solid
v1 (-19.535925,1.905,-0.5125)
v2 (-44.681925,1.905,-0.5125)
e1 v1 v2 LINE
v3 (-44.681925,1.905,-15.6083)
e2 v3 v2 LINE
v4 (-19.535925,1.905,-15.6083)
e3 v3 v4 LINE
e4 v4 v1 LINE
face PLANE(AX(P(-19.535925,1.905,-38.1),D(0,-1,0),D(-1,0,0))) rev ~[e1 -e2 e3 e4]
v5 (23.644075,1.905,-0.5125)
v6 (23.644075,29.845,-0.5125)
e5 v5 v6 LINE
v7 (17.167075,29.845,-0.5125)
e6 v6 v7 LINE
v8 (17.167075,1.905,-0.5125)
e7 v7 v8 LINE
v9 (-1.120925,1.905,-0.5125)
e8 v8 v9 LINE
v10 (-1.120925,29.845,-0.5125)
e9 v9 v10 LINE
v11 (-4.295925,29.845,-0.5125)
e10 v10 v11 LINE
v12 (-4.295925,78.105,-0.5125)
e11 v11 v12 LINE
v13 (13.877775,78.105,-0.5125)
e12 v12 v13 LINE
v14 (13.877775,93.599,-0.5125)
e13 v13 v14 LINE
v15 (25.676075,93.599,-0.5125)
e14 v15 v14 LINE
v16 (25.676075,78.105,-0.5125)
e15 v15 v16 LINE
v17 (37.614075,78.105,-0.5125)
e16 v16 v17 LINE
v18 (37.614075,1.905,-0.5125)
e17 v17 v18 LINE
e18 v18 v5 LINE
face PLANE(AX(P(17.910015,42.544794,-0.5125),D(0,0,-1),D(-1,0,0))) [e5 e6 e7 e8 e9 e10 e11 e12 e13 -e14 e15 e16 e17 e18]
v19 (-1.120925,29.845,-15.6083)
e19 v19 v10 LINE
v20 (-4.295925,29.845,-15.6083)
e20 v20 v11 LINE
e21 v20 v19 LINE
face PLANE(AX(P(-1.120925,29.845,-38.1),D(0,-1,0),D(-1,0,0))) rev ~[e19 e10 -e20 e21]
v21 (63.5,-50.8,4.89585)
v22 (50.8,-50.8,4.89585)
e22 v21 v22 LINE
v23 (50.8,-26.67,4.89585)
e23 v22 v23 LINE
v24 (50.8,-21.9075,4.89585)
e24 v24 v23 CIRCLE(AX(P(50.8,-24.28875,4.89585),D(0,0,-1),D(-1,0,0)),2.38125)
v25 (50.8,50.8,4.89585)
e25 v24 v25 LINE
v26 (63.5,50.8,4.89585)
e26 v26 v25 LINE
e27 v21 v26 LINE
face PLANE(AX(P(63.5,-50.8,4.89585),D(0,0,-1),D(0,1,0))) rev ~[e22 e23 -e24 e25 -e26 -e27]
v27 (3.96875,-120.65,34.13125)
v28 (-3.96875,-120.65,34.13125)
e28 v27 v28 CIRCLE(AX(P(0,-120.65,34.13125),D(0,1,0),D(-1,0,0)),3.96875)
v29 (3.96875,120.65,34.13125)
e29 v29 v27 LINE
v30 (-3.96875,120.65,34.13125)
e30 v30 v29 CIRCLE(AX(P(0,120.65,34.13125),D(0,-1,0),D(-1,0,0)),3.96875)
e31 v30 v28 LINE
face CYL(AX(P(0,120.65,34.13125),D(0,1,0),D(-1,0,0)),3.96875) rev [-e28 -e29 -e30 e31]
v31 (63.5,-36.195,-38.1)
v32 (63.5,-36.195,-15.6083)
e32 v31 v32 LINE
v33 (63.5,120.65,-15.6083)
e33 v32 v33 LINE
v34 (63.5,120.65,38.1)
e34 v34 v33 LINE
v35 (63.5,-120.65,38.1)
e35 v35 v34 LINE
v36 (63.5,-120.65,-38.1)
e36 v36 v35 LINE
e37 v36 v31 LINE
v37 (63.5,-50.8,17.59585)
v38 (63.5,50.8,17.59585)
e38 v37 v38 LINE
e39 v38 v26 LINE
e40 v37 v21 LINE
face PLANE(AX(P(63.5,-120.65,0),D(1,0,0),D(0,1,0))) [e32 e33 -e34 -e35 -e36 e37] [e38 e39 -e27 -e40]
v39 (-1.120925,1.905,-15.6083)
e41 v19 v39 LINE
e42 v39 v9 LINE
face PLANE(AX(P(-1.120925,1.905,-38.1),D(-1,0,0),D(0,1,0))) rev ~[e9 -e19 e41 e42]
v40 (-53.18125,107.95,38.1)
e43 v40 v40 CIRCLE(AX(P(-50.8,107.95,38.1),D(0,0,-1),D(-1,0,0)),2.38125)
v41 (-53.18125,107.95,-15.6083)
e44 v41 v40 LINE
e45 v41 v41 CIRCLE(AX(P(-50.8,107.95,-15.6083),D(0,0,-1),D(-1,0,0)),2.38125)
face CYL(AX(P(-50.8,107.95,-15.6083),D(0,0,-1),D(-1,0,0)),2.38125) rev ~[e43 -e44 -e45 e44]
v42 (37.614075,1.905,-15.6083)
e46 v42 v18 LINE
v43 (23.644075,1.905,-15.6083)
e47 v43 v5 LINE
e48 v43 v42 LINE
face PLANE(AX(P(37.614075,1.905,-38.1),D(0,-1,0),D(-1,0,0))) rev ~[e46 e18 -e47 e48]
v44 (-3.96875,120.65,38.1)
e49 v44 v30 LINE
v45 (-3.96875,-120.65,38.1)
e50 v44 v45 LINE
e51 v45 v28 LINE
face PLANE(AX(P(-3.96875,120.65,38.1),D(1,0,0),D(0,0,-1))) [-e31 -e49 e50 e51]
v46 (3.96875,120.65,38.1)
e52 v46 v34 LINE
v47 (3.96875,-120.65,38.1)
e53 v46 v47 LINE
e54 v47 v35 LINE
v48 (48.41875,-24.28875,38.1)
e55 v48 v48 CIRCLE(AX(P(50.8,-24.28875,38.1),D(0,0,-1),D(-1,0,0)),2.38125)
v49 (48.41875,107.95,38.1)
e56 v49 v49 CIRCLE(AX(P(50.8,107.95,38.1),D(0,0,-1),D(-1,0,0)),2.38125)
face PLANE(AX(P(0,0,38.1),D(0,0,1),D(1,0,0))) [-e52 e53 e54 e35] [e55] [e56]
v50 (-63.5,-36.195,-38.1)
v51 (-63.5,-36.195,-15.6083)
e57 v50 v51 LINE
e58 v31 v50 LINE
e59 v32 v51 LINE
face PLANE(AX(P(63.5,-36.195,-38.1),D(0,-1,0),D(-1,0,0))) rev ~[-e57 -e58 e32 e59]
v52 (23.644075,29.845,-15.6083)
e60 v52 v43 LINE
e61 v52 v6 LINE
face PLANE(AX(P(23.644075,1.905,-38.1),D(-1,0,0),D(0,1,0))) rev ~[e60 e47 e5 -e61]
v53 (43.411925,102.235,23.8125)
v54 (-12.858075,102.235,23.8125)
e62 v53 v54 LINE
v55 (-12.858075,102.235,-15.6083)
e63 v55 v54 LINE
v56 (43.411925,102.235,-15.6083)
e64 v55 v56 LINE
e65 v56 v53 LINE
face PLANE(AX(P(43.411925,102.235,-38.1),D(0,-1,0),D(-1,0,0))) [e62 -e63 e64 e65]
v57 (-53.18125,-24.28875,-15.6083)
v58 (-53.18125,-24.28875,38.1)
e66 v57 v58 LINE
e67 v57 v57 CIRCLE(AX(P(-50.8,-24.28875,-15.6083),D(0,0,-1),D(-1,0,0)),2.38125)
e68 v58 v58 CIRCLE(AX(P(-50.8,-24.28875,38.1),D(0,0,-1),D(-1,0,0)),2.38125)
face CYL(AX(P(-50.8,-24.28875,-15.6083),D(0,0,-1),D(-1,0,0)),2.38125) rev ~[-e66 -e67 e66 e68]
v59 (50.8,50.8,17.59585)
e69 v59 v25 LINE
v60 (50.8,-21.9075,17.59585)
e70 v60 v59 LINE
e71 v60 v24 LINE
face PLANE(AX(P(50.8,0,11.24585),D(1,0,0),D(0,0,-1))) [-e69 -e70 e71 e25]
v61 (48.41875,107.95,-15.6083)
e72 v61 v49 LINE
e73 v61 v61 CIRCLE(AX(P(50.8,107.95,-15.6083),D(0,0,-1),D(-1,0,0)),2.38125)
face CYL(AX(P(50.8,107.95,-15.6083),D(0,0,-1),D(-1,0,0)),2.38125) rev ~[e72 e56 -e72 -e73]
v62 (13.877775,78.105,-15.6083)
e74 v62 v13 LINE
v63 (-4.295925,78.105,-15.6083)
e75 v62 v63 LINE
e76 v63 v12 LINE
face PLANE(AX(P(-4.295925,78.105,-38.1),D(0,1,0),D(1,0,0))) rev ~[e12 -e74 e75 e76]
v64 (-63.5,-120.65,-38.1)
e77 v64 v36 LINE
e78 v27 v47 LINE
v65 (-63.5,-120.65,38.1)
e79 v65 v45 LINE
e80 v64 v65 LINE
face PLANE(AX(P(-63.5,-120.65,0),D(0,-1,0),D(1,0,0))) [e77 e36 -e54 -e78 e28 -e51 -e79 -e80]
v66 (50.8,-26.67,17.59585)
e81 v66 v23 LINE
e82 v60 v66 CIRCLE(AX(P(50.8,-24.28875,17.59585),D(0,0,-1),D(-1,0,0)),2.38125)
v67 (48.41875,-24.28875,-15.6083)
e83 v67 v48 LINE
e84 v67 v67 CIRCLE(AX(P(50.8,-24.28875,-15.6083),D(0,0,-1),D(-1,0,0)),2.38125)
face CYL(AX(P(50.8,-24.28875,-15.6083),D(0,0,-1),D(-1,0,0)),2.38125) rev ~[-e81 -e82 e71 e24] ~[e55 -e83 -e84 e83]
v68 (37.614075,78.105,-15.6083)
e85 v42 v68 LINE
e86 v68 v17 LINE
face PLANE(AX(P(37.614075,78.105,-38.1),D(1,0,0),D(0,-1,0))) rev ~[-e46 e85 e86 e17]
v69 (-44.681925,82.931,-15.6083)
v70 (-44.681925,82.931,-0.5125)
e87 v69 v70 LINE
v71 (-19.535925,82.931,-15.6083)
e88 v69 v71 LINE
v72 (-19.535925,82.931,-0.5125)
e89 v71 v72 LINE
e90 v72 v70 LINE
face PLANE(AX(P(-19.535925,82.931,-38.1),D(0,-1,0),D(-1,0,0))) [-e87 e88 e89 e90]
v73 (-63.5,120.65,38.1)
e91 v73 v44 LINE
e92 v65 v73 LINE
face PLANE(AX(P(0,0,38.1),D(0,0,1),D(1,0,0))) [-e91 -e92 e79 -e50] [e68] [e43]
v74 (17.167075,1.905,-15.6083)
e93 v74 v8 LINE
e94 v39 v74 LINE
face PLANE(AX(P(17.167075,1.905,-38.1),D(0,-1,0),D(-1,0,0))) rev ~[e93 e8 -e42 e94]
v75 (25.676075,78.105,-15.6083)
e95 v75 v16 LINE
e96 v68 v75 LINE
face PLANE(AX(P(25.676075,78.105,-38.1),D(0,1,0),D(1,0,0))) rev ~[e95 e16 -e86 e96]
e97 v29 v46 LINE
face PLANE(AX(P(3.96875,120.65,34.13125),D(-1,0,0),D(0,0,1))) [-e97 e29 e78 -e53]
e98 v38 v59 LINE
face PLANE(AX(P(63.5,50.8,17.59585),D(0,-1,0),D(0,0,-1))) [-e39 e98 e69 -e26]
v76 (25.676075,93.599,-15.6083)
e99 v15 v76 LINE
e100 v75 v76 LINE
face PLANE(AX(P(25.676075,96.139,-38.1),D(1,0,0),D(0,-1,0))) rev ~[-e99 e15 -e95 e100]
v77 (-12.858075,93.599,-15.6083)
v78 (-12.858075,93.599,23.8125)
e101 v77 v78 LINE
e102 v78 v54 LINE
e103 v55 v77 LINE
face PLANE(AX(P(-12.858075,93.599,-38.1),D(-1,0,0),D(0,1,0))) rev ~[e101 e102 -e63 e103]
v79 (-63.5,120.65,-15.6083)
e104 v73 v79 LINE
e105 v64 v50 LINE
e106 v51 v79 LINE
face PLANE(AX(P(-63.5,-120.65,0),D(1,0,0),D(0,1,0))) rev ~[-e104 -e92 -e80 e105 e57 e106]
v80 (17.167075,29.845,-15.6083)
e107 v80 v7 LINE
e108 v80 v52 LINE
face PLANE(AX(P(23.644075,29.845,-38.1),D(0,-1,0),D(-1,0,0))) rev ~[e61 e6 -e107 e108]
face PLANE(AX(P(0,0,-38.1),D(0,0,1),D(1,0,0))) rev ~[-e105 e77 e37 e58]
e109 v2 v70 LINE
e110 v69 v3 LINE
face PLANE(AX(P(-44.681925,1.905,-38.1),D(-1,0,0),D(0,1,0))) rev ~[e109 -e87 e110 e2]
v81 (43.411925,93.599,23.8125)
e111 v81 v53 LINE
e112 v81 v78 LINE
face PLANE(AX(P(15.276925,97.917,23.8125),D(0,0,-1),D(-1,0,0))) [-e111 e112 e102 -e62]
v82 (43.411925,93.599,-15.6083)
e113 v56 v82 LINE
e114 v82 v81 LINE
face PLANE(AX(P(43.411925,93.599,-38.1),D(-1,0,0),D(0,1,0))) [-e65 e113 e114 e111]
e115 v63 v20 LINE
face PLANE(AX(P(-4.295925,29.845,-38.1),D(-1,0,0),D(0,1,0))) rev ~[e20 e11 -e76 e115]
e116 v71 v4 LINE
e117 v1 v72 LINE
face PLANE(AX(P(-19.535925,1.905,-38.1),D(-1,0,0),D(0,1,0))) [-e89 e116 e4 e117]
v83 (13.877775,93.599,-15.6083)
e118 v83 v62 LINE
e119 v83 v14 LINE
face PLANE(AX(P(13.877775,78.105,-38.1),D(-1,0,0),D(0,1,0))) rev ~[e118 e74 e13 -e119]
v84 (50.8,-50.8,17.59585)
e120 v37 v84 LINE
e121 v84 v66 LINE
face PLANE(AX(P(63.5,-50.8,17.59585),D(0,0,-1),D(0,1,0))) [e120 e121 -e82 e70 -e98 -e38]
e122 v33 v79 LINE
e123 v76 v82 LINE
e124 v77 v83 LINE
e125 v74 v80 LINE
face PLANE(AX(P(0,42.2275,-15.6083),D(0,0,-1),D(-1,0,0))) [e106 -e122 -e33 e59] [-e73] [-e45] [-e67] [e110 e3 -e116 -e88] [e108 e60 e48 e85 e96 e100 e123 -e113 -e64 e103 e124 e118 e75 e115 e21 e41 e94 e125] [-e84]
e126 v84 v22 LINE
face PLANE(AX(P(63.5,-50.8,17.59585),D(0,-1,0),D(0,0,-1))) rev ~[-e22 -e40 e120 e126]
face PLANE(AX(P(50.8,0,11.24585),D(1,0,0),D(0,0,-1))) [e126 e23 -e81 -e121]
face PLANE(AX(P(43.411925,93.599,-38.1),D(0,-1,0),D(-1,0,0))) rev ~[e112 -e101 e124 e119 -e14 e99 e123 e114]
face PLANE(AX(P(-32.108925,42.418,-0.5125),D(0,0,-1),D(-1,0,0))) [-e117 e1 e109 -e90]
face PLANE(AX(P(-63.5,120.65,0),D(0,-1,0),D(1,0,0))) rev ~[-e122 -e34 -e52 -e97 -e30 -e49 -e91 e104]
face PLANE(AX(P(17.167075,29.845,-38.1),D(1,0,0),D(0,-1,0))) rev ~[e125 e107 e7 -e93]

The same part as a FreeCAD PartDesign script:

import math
import FreeCAD as App
import Part
import Sketcher
Q = App.Units.Quantity

doc = App.newDocument("Part")
body = doc.addObject("PartDesign::Body", "Body")

sketch1 = body.newObject("Sketcher::SketchObject", "Sketch")
sketch1.AttachmentSupport = (doc.getObject("XY_Plane"), [""])
sketch1.MapMode = "FlatFace"
sketch1.addGeometry([
    Part.LineSegment(App.Vector(-64, 121, 0), App.Vector(-64, -121, 0)),
    Part.LineSegment(App.Vector(-64, -121, 0), App.Vector(64, -121, 0)),
    Part.LineSegment(App.Vector(64, -121, 0), App.Vector(64, 121, 0)),
    Part.LineSegment(App.Vector(64, 121, 0), App.Vector(-64, 121, 0)),
], False)
sketch1.addConstraint([
    Sketcher.Constraint("Coincident", 0, 2, 1, 1),
    Sketcher.Constraint("Coincident", 1, 2, 2, 1),
    Sketcher.Constraint("Coincident", 2, 2, 3, 1),
    Sketcher.Constraint("Coincident", 3, 2, 0, 1),
    Sketcher.Constraint("Vertical", 0),
    Sketcher.Constraint("Horizontal", 1),
    Sketcher.Constraint("Vertical", 2),
    Sketcher.Constraint("Horizontal", 3),
    Sketcher.Constraint("Symmetric", 0, 2, 2, 2, -1, 1),
    Sketcher.Constraint("DistanceX", 1, 1, 1, 2, Q("5 in")),
    Sketcher.Constraint("DistanceY", 0, 2, 0, 1, Q("9.5 in")),
])
pad1 = body.newObject("PartDesign::Pad", "Pad")
pad1.Profile = sketch1
pad1.Length = Q("3 in")
pad1.Midplane = True

sketch2 = body.newObject("Sketcher::SketchObject", "Sketch001")
sketch2.AttachmentSupport = (doc.getObject("XZ_Plane"), [""])
sketch2.MapMode = "FlatFace"
sketch2.AttachmentOffset = App.Placement(App.Vector(0, 0, -4.75 * 25.4), App.Rotation())
sketch2.addGeometry([
    Part.LineSegment(App.Vector(-4, 34.1, 0), App.Vector(-4, 38.1, 0)),
    Part.LineSegment(App.Vector(-4, 38.1, 0), App.Vector(4, 38.1, 0)),
    Part.LineSegment(App.Vector(4, 38.1, 0), App.Vector(4, 34.1, 0)),
    Part.ArcOfCircle(Part.Circle(App.Vector(0, 34.1, 0), App.Vector(0, 0, 1), 4), math.radians(180), math.radians(360)),
], False)
sketch2.addConstraint([
    Sketcher.Constraint("Coincident", 0, 2, 1, 1),
    Sketcher.Constraint("Coincident", 1, 2, 2, 1),
    Sketcher.Constraint("Tangent", 2, 2, 3, 2),
    Sketcher.Constraint("Tangent", 3, 1, 0, 1),
    Sketcher.Constraint("Vertical", 0),
    Sketcher.Constraint("Horizontal", 1),
    Sketcher.Constraint("Vertical", 2),
    Sketcher.Constraint("PointOnObject", 3, 3, -2),
    Sketcher.Constraint("Radius", 3, Q("0.15625 in")),
    Sketcher.Constraint("DistanceY", -1, 1, 0, 2, Q("1.5 in")),
    Sketcher.Constraint("DistanceY", 0, 1, 0, 2, Q("0.15625 in")),
])
pocket1 = body.newObject("PartDesign::Pocket", "Pocket")
pocket1.Profile = sketch2
pocket1.Type = "UpToFirst"
pocket1.Reversed = True

sketch3 = body.newObject("Sketcher::SketchObject", "Sketch002")
sketch3.AttachmentSupport = (doc.getObject("XY_Plane"), [""])
sketch3.MapMode = "FlatFace"
sketch3.AttachmentOffset = App.Placement(App.Vector(0, 0, -1.5 * 25.4), App.Rotation())
sketch3.addGeometry([
    Part.LineSegment(App.Vector(37.6, 78.1, 0), App.Vector(37.6, 1.9, 0)),
    Part.LineSegment(App.Vector(37.6, 1.9, 0), App.Vector(23.6, 1.9, 0)),
    Part.LineSegment(App.Vector(23.6, 1.9, 0), App.Vector(23.6, 29.8, 0)),
    Part.LineSegment(App.Vector(23.6, 29.8, 0), App.Vector(17.2, 29.8, 0)),
    Part.LineSegment(App.Vector(17.2, 29.8, 0), App.Vector(17.2, 1.9, 0)),
    Part.LineSegment(App.Vector(17.2, 1.9, 0), App.Vector(-1.1, 1.9, 0)),
    Part.LineSegment(App.Vector(-1.1, 1.9, 0), App.Vector(-1.1, 29.8, 0)),
    Part.LineSegment(App.Vector(-1.1, 29.8, 0), App.Vector(-4.3, 29.8, 0)),
    Part.LineSegment(App.Vector(-4.3, 29.8, 0), App.Vector(-4.3, 78.1, 0)),
    Part.LineSegment(App.Vector(-4.3, 78.1, 0), App.Vector(13.9, 78.1, 0)),
    Part.LineSegment(App.Vector(13.9, 78.1, 0), App.Vector(13.9, 96.1, 0)),
    Part.LineSegment(App.Vector(13.9, 96.1, 0), App.Vector(25.7, 96.1, 0)),
    Part.LineSegment(App.Vector(25.7, 96.1, 0), App.Vector(25.7, 78.1, 0)),
    Part.LineSegment(App.Vector(25.7, 78.1, 0), App.Vector(37.6, 78.1, 0)),
    Part.LineSegment(App.Vector(-19.5, 82.9, 0), App.Vector(-19.5, 1.9, 0)),
    Part.LineSegment(App.Vector(-19.5, 1.9, 0), App.Vector(-44.7, 1.9, 0)),
    Part.LineSegment(App.Vector(-44.7, 1.9, 0), App.Vector(-44.7, 82.9, 0)),
    Part.LineSegment(App.Vector(-44.7, 82.9, 0), App.Vector(-19.5, 82.9, 0)),
], False)
sketch3.addConstraint([
    Sketcher.Constraint("Coincident", 0, 2, 1, 1),
    Sketcher.Constraint("Coincident", 1, 2, 2, 1),
    Sketcher.Constraint("Coincident", 2, 2, 3, 1),
    Sketcher.Constraint("Coincident", 3, 2, 4, 1),
    Sketcher.Constraint("Coincident", 4, 2, 5, 1),
    Sketcher.Constraint("Coincident", 5, 2, 6, 1),
    Sketcher.Constraint("Coincident", 6, 2, 7, 1),
    Sketcher.Constraint("Coincident", 7, 2, 8, 1),
    Sketcher.Constraint("Coincident", 8, 2, 9, 1),
    Sketcher.Constraint("Coincident", 9, 2, 10, 1),
    Sketcher.Constraint("Coincident", 10, 2, 11, 1),
    Sketcher.Constraint("Coincident", 11, 2, 12, 1),
    Sketcher.Constraint("Coincident", 12, 2, 13, 1),
    Sketcher.Constraint("Coincident", 13, 2, 0, 1),
    Sketcher.Constraint("Coincident", 14, 2, 15, 1),
    Sketcher.Constraint("Coincident", 15, 2, 16, 1),
    Sketcher.Constraint("Coincident", 16, 2, 17, 1),
    Sketcher.Constraint("Coincident", 17, 2, 14, 1),
    Sketcher.Constraint("Vertical", 0),
    Sketcher.Constraint("Horizontal", 1),
    Sketcher.Constraint("Vertical", 2),
    Sketcher.Constraint("Horizontal", 3),
    Sketcher.Constraint("Vertical", 4),
    Sketcher.Constraint("Horizontal", 5),
    Sketcher.Constraint("Vertical", 6),
    Sketcher.Constraint("Horizontal", 7),
    Sketcher.Constraint("Vertical", 8),
    Sketcher.Constraint("Horizontal", 9),
    Sketcher.Constraint("Vertical", 10),
    Sketcher.Constraint("Horizontal", 11),
    Sketcher.Constraint("Vertical", 12),
    Sketcher.Constraint("Horizontal", 13),
    Sketcher.Constraint("Vertical", 14),
    Sketcher.Constraint("Horizontal", 15),
    Sketcher.Constraint("Vertical", 16),
    Sketcher.Constraint("Horizontal", 17),
    Sketcher.Constraint("Horizontal", 1, 2, 4, 2),
    Sketcher.Constraint("Horizontal", 3, 2, 6, 2),
    Sketcher.Constraint("Horizontal", 9, 2, 12, 2),
    Sketcher.Constraint("Horizontal", 5, 2, 14, 2),
    Sketcher.Constraint("DistanceY", 0, 2, 0, 1, Q("3 in")),
    Sketcher.Constraint("DistanceY", 2, 1, 2, 2, Q("1.1 in")),
    Sketcher.Constraint("DistanceX", 1, 2, 1, 1, Q("0.55 in")),
    Sketcher.Constraint("DistanceX", 5, 2, 5, 1, Q("0.72 in")),
    Sketcher.Constraint("DistanceX", 13, 1, 13, 2, Q("0.47 in")),
    Sketcher.Constraint("DistanceX", 15, 2, 15, 1, Q("0.99 in")),
    Sketcher.Constraint("DistanceY", 10, 1, 10, 2, Q("0.71 in")),
    Sketcher.Constraint("DistanceY", 14, 2, 14, 1, Q("3.19 in")),
    Sketcher.Constraint("DistanceX", 7, 2, 2, 2, Q("1.1 in")),
    Sketcher.Constraint("DistanceX", 14, 2, 7, 2, Q("0.6 in")),
    Sketcher.Constraint("DistanceX", 3, 2, 3, 1, Q("0.255 in")),
    Sketcher.Constraint("DistanceX", 9, 1, 9, 2, Q("0.7155 in")),
    Sketcher.Constraint("DistanceY", -1, 1, 0, 2, Q("0.075 in")),
    Sketcher.Constraint("DistanceX", -1, 1, 0, 2, 37.614075),
])
pocket2 = body.newObject("PartDesign::Pocket", "Pocket001")
pocket2.Profile = sketch3
pocket2.Length = 37.5875
pocket2.Reversed = True

sketch4 = body.newObject("Sketcher::SketchObject", "Sketch003")
sketch4.AttachmentSupport = (doc.getObject("XY_Plane"), [""])
sketch4.MapMode = "FlatFace"
sketch4.AttachmentOffset = App.Placement(App.Vector(0, 0, -1.5 * 25.4), App.Rotation())
sketch4.addGeometry([
    Part.LineSegment(App.Vector(43, 102, 0), App.Vector(43, 94, 0)),
    Part.LineSegment(App.Vector(43, 94, 0), App.Vector(-13, 94, 0)),
    Part.LineSegment(App.Vector(-13, 94, 0), App.Vector(-13, 102, 0)),
    Part.LineSegment(App.Vector(-13, 102, 0), App.Vector(43, 102, 0)),
], False)
sketch4.addConstraint([
    Sketcher.Constraint("Coincident", 0, 2, 1, 1),
    Sketcher.Constraint("Coincident", 1, 2, 2, 1),
    Sketcher.Constraint("Coincident", 2, 2, 3, 1),
    Sketcher.Constraint("Coincident", 3, 2, 0, 1),
    Sketcher.Constraint("Vertical", 0),
    Sketcher.Constraint("Horizontal", 1),
    Sketcher.Constraint("Vertical", 2),
    Sketcher.Constraint("Horizontal", 3),
    Sketcher.Constraint("DistanceY", 0, 2, 0, 1, Q("0.34 in")),
    Sketcher.Constraint("DistanceY", -1, 1, 0, 2, Q("3.685 in")),
    Sketcher.Constraint("DistanceX", 1, 2, 1, 1, 56.27),
    Sketcher.Constraint("DistanceX", -1, 1, 0, 2, 43.411925),
])
pocket3 = body.newObject("PartDesign::Pocket", "Pocket002")
pocket3.Profile = sketch4
pocket3.Length = Q("2.4375 in")
pocket3.Reversed = True

sketch5 = body.newObject("Sketcher::SketchObject", "Sketch004")
sketch5.AttachmentSupport = (doc.getObject("XY_Plane"), [""])
sketch5.MapMode = "FlatFace"
sketch5.AttachmentOffset = App.Placement(App.Vector(0, 0, -1.5 * 25.4), App.Rotation())
sketch5.addGeometry([
    Part.LineSegment(App.Vector(64, 121, 0), App.Vector(64, -36, 0)),
    Part.LineSegment(App.Vector(64, -36, 0), App.Vector(-64, -36, 0)),
    Part.LineSegment(App.Vector(-64, -36, 0), App.Vector(-64, 121, 0)),
    Part.LineSegment(App.Vector(-64, 121, 0), App.Vector(64, 121, 0)),
], False)
sketch5.addConstraint([
    Sketcher.Constraint("Coincident", 0, 2, 1, 1),
    Sketcher.Constraint("Coincident", 1, 2, 2, 1),
    Sketcher.Constraint("Coincident", 2, 2, 3, 1),
    Sketcher.Constraint("Coincident", 3, 2, 0, 1),
    Sketcher.Constraint("Vertical", 0),
    Sketcher.Constraint("Horizontal", 1),
    Sketcher.Constraint("Vertical", 2),
    Sketcher.Constraint("Horizontal", 3),
    Sketcher.Constraint("DistanceX", 1, 2, 1, 1, Q("5 in")),
    Sketcher.Constraint("DistanceX", -1, 1, 0, 2, Q("2.5 in")),
    Sketcher.Constraint("DistanceY", 0, 2, 0, 1, Q("6.175 in")),
    Sketcher.Constraint("DistanceY", -1, 1, 2, 2, Q("4.75 in")),
])
pocket4 = body.newObject("PartDesign::Pocket", "Pocket003")
pocket4.Profile = sketch5
pocket4.Length = Q("0.8855 in")
pocket4.Reversed = True

sketch6 = body.newObject("Sketcher::SketchObject", "Sketch005")
sketch6.AttachmentSupport = (doc.getObject("XY_Plane"), [""])
sketch6.MapMode = "FlatFace"
sketch6.AttachmentOffset = App.Placement(App.Vector(0, 0, -0.6145 * 25.4), App.Rotation())
sketch6.addGeometry(Part.Circle(App.Vector(50.8, -24.3, 0), App.Vector(0, 0, 1), 2.4), False)
sketch6.addConstraint([
    Sketcher.Constraint("Diameter", 0, Q("0.1875 in")),
    Sketcher.Constraint("DistanceX", -1, 1, 0, 3, Q("2 in")),
    Sketcher.Constraint("DistanceY", 0, 3, -1, 1, 24.28875),
])
pocket5 = body.newObject("PartDesign::Pocket", "Pocket004")
pocket5.Profile = sketch6
pocket5.Type = "UpToFirst"
pocket5.Reversed = True

sketch7 = body.newObject("Sketcher::SketchObject", "Sketch006")
sketch7.AttachmentSupport = (doc.getObject("XY_Plane"), [""])
sketch7.MapMode = "FlatFace"
sketch7.AttachmentOffset = App.Placement(App.Vector(0, 0, -0.6145 * 25.4), App.Rotation())
sketch7.addGeometry(Part.Circle(App.Vector(-50.8, 108, 0), App.Vector(0, 0, 1), 2.4), False)
sketch7.addConstraint([
    Sketcher.Constraint("Diameter", 0, Q("0.1875 in")),
    Sketcher.Constraint("DistanceX", 0, 3, -1, 1, Q("2 in")),
    Sketcher.Constraint("DistanceY", -1, 1, 0, 3, Q("4.25 in")),
])
pocket6 = body.newObject("PartDesign::Pocket", "Pocket005")
pocket6.Profile = sketch7
pocket6.Type = "UpToFirst"
pocket6.Reversed = True

sketch8 = body.newObject("Sketcher::SketchObject", "Sketch007")
sketch8.AttachmentSupport = (doc.getObject("XY_Plane"), [""])
sketch8.MapMode = "FlatFace"
sketch8.AttachmentOffset = App.Placement(App.Vector(0, 0, -0.6145 * 25.4), App.Rotation())
sketch8.addGeometry(Part.Circle(App.Vector(-50.8, -24.3, 0), App.Vector(0, 0, 1), 2.4), False)
sketch8.addConstraint([
    Sketcher.Constraint("Diameter", 0, Q("0.1875 in")),
    Sketcher.Constraint("DistanceX", 0, 3, -1, 1, Q("2 in")),
    Sketcher.Constraint("DistanceY", 0, 3, -1, 1, 24.28875),
])
pocket7 = body.newObject("PartDesign::Pocket", "Pocket006")
pocket7.Profile = sketch8
pocket7.Type = "UpToFirst"
pocket7.Reversed = True

sketch9 = body.newObject("Sketcher::SketchObject", "Sketch008")
sketch9.AttachmentSupport = (doc.getObject("XY_Plane"), [""])
sketch9.MapMode = "FlatFace"
sketch9.AttachmentOffset = App.Placement(App.Vector(0, 0, -0.6145 * 25.4), App.Rotation())
sketch9.addGeometry(Part.Circle(App.Vector(50.8, 108, 0), App.Vector(0, 0, 1), 2.4), False)
sketch9.addConstraint([
    Sketcher.Constraint("Diameter", 0, Q("0.1875 in")),
    Sketcher.Constraint("DistanceX", -1, 1, 0, 3, Q("2 in")),
    Sketcher.Constraint("DistanceY", -1, 1, 0, 3, Q("4.25 in")),
])
pocket8 = body.newObject("PartDesign::Pocket", "Pocket007")
pocket8.Profile = sketch9
pocket8.Type = "UpToFirst"
pocket8.Reversed = True

sketch10 = body.newObject("Sketcher::SketchObject", "Sketch009")
sketch10.AttachmentSupport = (doc.getObject("YZ_Plane"), [""])
sketch10.MapMode = "FlatFace"
sketch10.AttachmentOffset = App.Placement(App.Vector(0, 0, 2.5 * 25.4), App.Rotation())
sketch10.addGeometry([
    Part.LineSegment(App.Vector(51, 18, 0), App.Vector(-51, 18, 0)),
    Part.LineSegment(App.Vector(-51, 18, 0), App.Vector(-51, 5, 0)),
    Part.LineSegment(App.Vector(-51, 5, 0), App.Vector(51, 5, 0)),
    Part.LineSegment(App.Vector(51, 5, 0), App.Vector(51, 18, 0)),
], False)
sketch10.addConstraint([
    Sketcher.Constraint("Coincident", 0, 2, 1, 1),
    Sketcher.Constraint("Coincident", 1, 2, 2, 1),
    Sketcher.Constraint("Coincident", 2, 2, 3, 1),
    Sketcher.Constraint("Coincident", 3, 2, 0, 1),
    Sketcher.Constraint("Horizontal", 0),
    Sketcher.Constraint("Vertical", 1),
    Sketcher.Constraint("Horizontal", 2),
    Sketcher.Constraint("Vertical", 3),
    Sketcher.Constraint("DistanceX", 0, 2, 0, 1, Q("4 in")),
    Sketcher.Constraint("DistanceY", 1, 2, 1, 1, Q("0.5 in")),
    Sketcher.Constraint("DistanceX", 0, 2, -1, 1, Q("2 in")),
    Sketcher.Constraint("DistanceY", -1, 1, 0, 2, 17.59585),
])
pocket9 = body.newObject("PartDesign::Pocket", "Pocket008")
pocket9.Profile = sketch10
pocket9.Length = Q("0.5 in")

doc.recompute()
